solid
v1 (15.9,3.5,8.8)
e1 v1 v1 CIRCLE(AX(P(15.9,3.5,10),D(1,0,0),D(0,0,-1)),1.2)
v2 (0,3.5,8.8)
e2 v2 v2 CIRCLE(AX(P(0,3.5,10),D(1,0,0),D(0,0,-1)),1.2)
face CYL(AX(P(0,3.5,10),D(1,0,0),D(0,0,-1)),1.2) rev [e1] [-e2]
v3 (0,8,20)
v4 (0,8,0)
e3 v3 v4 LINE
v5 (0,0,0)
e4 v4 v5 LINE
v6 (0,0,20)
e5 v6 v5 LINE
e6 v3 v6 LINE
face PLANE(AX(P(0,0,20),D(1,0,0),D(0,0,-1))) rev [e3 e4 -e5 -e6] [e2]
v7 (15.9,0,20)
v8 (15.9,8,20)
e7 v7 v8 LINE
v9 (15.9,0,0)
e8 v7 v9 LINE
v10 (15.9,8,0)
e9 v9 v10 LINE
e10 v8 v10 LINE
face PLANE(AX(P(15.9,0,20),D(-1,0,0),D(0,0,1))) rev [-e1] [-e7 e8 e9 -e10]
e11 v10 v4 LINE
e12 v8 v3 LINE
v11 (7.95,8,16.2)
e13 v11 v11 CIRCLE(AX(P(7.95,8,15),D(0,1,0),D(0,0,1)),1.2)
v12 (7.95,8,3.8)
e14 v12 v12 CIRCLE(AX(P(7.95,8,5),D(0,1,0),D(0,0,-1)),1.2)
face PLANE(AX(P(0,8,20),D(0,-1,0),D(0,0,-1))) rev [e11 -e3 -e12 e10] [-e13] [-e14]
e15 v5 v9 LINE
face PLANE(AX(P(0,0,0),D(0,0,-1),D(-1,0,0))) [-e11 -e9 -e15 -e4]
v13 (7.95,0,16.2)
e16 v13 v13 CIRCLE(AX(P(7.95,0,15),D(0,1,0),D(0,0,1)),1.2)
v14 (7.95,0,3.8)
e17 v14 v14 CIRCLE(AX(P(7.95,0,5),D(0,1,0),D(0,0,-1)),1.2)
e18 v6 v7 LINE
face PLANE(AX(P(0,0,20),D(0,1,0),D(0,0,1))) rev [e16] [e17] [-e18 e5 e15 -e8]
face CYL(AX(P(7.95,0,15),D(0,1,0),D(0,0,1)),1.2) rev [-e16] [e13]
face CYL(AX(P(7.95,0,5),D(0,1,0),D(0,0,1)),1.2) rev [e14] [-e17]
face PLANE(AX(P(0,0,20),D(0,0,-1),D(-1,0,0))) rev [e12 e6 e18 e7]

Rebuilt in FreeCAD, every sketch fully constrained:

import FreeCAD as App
import Part
import Sketcher

V = App.Vector
Q = App.Units.Quantity


def add_polygon(sketch, points):
    """Adds a closed chain of lines whose ends are joined by coincident constraints."""
    first, n = sketch.GeometryCount, len(points)
    for a, b in zip(points, points[1:] + points[:1]):
        sketch.addGeometry(Part.LineSegment(App.Vector(*a, 0), App.Vector(*b, 0)), False)
    for i in range(n):
        sketch.addConstraint(Sketcher.Constraint("Coincident", first + i, 2, first + (i + 1) % n, 1))

doc = App.newDocument("Part")
params = doc.addObject("Spreadsheet::Sheet", "Params")
for row, (alias, value) in enumerate([
    ("sketch1_height", "8 mm"),
    ("sketch1_width", "15.9 mm"),
    ("pad1_length", "20 mm"),
    ("sketch2_diameter", "2.4 mm"),
    ("sketch3_diameter", "2.4 mm"),
], start=1):
    params.set(f"A{row}", alias)
    params.set(f"B{row}", "=" + value)
    params.setAlias(f"B{row}", alias)

body = doc.addObject("PartDesign::Body", "Body")

sketch1 = body.newObject("Sketcher::SketchObject", "Sketch")
sketch1.AttachmentSupport = (doc.getObject("XY_Plane"), [""])
sketch1.MapMode = "FlatFace"
add_polygon(sketch1, [(0, 8), (0, 0), (15.9, 0), (15.9, 8)])
sketch1.addConstraint(Sketcher.Constraint("Vertical", 0))
sketch1.addConstraint(Sketcher.Constraint("Horizontal", 1))
sketch1.addConstraint(Sketcher.Constraint("Vertical", 2))
sketch1.addConstraint(Sketcher.Constraint("Horizontal", 3))
sketch1.addConstraint(Sketcher.Constraint("Coincident", 0, 2, -1, 1))
sketch1.addConstraint(Sketcher.Constraint("DistanceY", 0, 2, 0, 1, Q("8 mm")))
sketch1.addConstraint(Sketcher.Constraint("DistanceX", 1, 1, 1, 2, Q("15.9 mm")))
sketch1.setExpression("Constraints[9]", "Params.sketch1_height")
sketch1.setExpression("Constraints[10]", "Params.sketch1_width")
pad1 = body.newObject("PartDesign::Pad", "Pad")
pad1.Profile = sketch1
pad1.setExpression("Length", "Params.pad1_length")

sketch2 = body.newObject("Sketcher::SketchObject", "Sketch001")
sketch2.AttachmentSupport = (doc.getObject("YZ_Plane"), [""])
sketch2.MapMode = "FlatFace"
sketch2.AttachmentOffset = App.Placement(V(0, 0, 15.9), App.Rotation())
sketch2.addGeometry(Part.Circle(V(3.5, 10, 0), V(0, 0, 1), 1.2), False)
sketch2.addConstraint(Sketcher.Constraint("Diameter", 0, Q("2.4 mm")))
sketch2.addConstraint(Sketcher.Constraint("DistanceY", -1, 1, 0, 3, Q("10 mm")))
sketch2.addConstraint(Sketcher.Constraint("DistanceX", -1, 1, 0, 3, Q("3.5 mm")))
sketch2.setExpression("Constraints[0]", "Params.sketch2_diameter")
pocket1 = body.newObject("PartDesign::Pocket", "Pocket")
pocket1.Profile = sketch2
pocket1.Type = "ThroughAll"

sketch3 = body.newObject("Sketcher::SketchObject", "Sketch002")
sketch3.AttachmentSupport = (doc.getObject("XZ_Plane"), [""])
sketch3.MapMode = "FlatFace"
sketch3.AttachmentOffset = App.Placement(V(0, 0, -8), App.Rotation())
sketch3.addGeometry(Part.Circle(V(7.95, 15, 0), V(0, 0, 1), 1.2), False)
sketch3.addGeometry(Part.Circle(V(7.95, 5, 0), V(0, 0, 1), 1.2), False)
sketch3.addConstraint(Sketcher.Constraint("Equal", 0, 1))
sketch3.addConstraint(Sketcher.Constraint("Vertical", 0, 3, 1, 3))
sketch3.addConstraint(Sketcher.Constraint("Diameter", 0, Q("2.4 mm")))
sketch3.addConstraint(Sketcher.Constraint("DistanceY", -1, 1, 0, 3, Q("15 mm")))
sketch3.addConstraint(Sketcher.Constraint("DistanceY", -1, 1, 1, 3, Q("5 mm")))
sketch3.addConstraint(Sketcher.Constraint("DistanceX", -1, 1, 0, 3, Q("7.95 mm")))
sketch3.setExpression("Constraints[2]", "Params.sketch3_diameter")
pocket2 = body.newObject("PartDesign::Pocket", "Pocket001")
pocket2.Profile = sketch3
pocket2.Type = "ThroughAll"
pocket2.Reversed = True

doc.recompute()
